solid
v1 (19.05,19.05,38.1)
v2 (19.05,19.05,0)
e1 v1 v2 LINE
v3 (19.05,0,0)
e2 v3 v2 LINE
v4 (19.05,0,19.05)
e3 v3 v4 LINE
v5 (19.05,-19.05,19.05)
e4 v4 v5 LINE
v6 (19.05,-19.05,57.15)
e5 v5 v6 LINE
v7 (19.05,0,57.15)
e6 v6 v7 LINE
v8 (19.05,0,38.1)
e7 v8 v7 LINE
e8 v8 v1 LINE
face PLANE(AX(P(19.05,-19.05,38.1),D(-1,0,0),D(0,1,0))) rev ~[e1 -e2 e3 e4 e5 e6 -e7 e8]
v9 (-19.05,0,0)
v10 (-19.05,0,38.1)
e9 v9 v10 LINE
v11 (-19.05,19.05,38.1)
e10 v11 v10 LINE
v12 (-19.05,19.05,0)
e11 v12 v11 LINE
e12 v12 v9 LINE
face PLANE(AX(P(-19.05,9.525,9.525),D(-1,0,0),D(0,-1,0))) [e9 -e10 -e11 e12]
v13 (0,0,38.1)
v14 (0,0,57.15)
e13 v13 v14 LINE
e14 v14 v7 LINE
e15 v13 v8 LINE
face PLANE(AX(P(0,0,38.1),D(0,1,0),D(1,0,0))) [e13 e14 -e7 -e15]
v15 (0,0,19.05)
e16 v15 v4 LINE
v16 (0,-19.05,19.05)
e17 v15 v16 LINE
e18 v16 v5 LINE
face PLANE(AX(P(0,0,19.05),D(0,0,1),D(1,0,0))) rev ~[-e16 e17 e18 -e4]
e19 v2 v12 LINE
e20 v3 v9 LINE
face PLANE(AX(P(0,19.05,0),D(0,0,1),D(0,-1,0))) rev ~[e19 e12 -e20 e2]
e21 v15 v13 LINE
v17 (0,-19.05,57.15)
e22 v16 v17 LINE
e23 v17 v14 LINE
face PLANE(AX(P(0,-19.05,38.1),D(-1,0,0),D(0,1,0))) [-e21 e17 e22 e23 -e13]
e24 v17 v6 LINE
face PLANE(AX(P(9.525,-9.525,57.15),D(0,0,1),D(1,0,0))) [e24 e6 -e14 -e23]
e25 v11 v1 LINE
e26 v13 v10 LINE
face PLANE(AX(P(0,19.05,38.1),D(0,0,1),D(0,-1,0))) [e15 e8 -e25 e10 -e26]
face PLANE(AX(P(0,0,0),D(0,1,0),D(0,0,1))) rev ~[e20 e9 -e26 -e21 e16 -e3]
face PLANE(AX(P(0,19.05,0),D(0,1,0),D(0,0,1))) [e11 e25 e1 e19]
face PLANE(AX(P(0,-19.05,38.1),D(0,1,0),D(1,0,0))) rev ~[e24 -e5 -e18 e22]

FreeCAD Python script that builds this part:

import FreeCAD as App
import Part
import Sketcher

V = App.Vector
Q = App.Units.Quantity


def add_polygon(sketch, points):
    """Adds a closed chain of lines whose ends are joined by coincident constraints."""
    first, n = sketch.GeometryCount, len(points)
    for a, b in zip(points, points[1:] + points[:1]):
        sketch.addGeometry(Part.LineSegment(App.Vector(*a, 0), App.Vector(*b, 0)), False)
    for i in range(n):
        sketch.addConstraint(Sketcher.Constraint("Coincident", first + i, 2, first + (i + 1) % n, 1))

doc = App.newDocument("Part")
body = doc.addObject("PartDesign::Body", "Body")

# Sketch on XY plane
sketch1 = body.newObject("Sketcher::SketchObject", "Sketch")
sketch1.AttachmentSupport = (doc.getObject("XY_Plane"), [""])
sketch1.MapMode = "FlatFace"
add_polygon(sketch1, [(0, 19.05), (0, 0), (19.05, 0), (19.05, 19.05)])  # lines 0-3
sketch1.addConstraint(Sketcher.Constraint("Vertical", 0))
sketch1.addConstraint(Sketcher.Constraint("Horizontal", 1))
sketch1.addConstraint(Sketcher.Constraint("Vertical", 2))
sketch1.addConstraint(Sketcher.Constraint("Horizontal", 3))
sketch1.addConstraint(Sketcher.Constraint("Coincident", 0, 2, -1, 1))
sketch1.addConstraint(Sketcher.Constraint("Equal", 3, 0))
sketch1.addConstraint(Sketcher.Constraint("DistanceX", 1, 1, 1, 2, Q("0.75 in")))
pad1 = body.newObject("PartDesign::Pad", "Pad")
pad1.Profile = sketch1
pad1.Length = Q("0.75 in")

# Sketch on XY plane
sketch2 = body.newObject("Sketcher::SketchObject", "Sketch001")
sketch2.AttachmentSupport = (doc.getObject("XY_Plane"), [""])
sketch2.MapMode = "FlatFace"
sketch2.AttachmentOffset = App.Placement(V(0, 0, 0.75 * 25.4), App.Rotation())
add_polygon(sketch2, [(0, 19.05), (0, 0), (19.05, 0), (19.05, 19.05)])  # lines 0-3
sketch2.addConstraint(Sketcher.Constraint("Vertical", 0))
sketch2.addConstraint(Sketcher.Constraint("Horizontal", 1))
sketch2.addConstraint(Sketcher.Constraint("Vertical", 2))
sketch2.addConstraint(Sketcher.Constraint("Horizontal", 3))
sketch2.addConstraint(Sketcher.Constraint("Coincident", 0, 2, -1, 1))
sketch2.addConstraint(Sketcher.Constraint("Equal", 3, 0))
sketch2.addConstraint(Sketcher.Constraint("DistanceX", 1, 1, 1, 2, Q("0.75 in")))
pad2 = body.newObject("PartDesign::Pad", "Pad001")
pad2.Profile = sketch2
pad2.Length = Q("0.75 in")

# Sketch on XZ plane
sketch3 = body.newObject("Sketcher::SketchObject", "Sketch002")
sketch3.AttachmentSupport = (doc.getObject("XZ_Plane"), [""])
sketch3.MapMode = "FlatFace"
add_polygon(sketch3, [(0, 38.1), (0, 19.05), (19.05, 19.05), (19.05, 38.1)])  # lines 0-3
sketch3.addConstraint(Sketcher.Constraint("Vertical", 0))
sketch3.addConstraint(Sketcher.Constraint("Horizontal", 1))
sketch3.addConstraint(Sketcher.Constraint("Vertical", 2))
sketch3.addConstraint(Sketcher.Constraint("Horizontal", 3))
sketch3.addConstraint(Sketcher.Constraint("PointOnObject", 0, 2, -2))
sketch3.addConstraint(Sketcher.Constraint("Equal", 3, 0))
sketch3.addConstraint(Sketcher.Constraint("DistanceX", 1, 1, 1, 2, Q("0.75 in")))
sketch3.addConstraint(Sketcher.Constraint("DistanceY", -1, 1, 2, 2, Q("1.5 in")))
pad3 = body.newObject("PartDesign::Pad", "Pad002")
pad3.Profile = sketch3
pad3.Length = Q("0.75 in")

# Sketch on YZ plane
sketch4 = body.newObject("Sketcher::SketchObject", "Sketch003")
sketch4.AttachmentSupport = (doc.getObject("YZ_Plane"), [""])
sketch4.MapMode = "FlatFace"
add_polygon(sketch4, [(19.05, 38.1), (19.05, 19.05), (0, 19.05), (0, 38.1)])  # lines 0-3
sketch4.addConstraint(Sketcher.Constraint("Vertical", 0))
sketch4.addConstraint(Sketcher.Constraint("Horizontal", 1))
sketch4.addConstraint(Sketcher.Constraint("Vertical", 2))
sketch4.addConstraint(Sketcher.Constraint("Horizontal", 3))
sketch4.addConstraint(Sketcher.Constraint("PointOnObject", 1, 2, -2))
sketch4.addConstraint(Sketcher.Constraint("Equal", 3, 0))
sketch4.addConstraint(Sketcher.Constraint("DistanceX", 1, 2, 1, 1, Q("0.75 in")))
sketch4.addConstraint(Sketcher.Constraint("DistanceY", -1, 1, 2, 2, Q("1.5 in")))
pad4 = body.newObject("PartDesign::Pad", "Pad003")
pad4.Profile = sketch4
pad4.Length = Q("0.75 in")
pad4.Reversed = True

# Sketch on YZ plane
sketch5 = body.newObject("Sketcher::SketchObject", "Sketch004")
sketch5.AttachmentSupport = (doc.getObject("YZ_Plane"), [""])
sketch5.MapMode = "FlatFace"
add_polygon(sketch5, [(19.05, 19.05), (19.05, 0), (0, 0), (0, 19.05)])  # lines 0-3
sketch5.addConstraint(Sketcher.Constraint("Vertical", 0))
sketch5.addConstraint(Sketcher.Constraint("Horizontal", 1))
sketch5.addConstraint(Sketcher.Constraint("Vertical", 2))
sketch5.addConstraint(Sketcher.Constraint("Horizontal", 3))
sketch5.addConstraint(Sketcher.Constraint("Coincident", 1, 2, -1, 1))
sketch5.addConstraint(Sketcher.Constraint("Equal", 3, 0))
sketch5.addConstraint(Sketcher.Constraint("DistanceX", 1, 2, 1, 1, Q("0.75 in")))
pad5 = body.newObject("PartDesign::Pad", "Pad004")
pad5.Profile = sketch5
pad5.Length = Q("0.75 in")
pad5.Reversed = True

# Sketch on XY plane
sketch6 = body.newObject("Sketcher::SketchObject", "Sketch005")
sketch6.AttachmentSupport = (doc.getObject("XY_Plane"), [""])
sketch6.MapMode = "FlatFace"
sketch6.AttachmentOffset = App.Placement(V(0, 0, 1.5 * 25.4), App.Rotation())
add_polygon(sketch6, [(0, 0), (0, -19.05), (19.05, -19.05), (19.05, 0)])  # lines 0-3
sketch6.addConstraint(Sketcher.Constraint("Vertical", 0))
sketch6.addConstraint(Sketcher.Constraint("Horizontal", 1))
sketch6.addConstraint(Sketcher.Constraint("Vertical", 2))
sketch6.addConstraint(Sketcher.Constraint("Horizontal", 3))
sketch6.addConstraint(Sketcher.Constraint("Coincident", 3, 2, -1, 1))
sketch6.addConstraint(Sketcher.Constraint("Equal", 3, 0))
sketch6.addConstraint(Sketcher.Constraint("DistanceX", 1, 1, 1, 2, Q("0.75 in")))
pad6 = body.newObject("PartDesign::Pad", "Pad005")
pad6.Profile = sketch6
pad6.Length = Q("0.75 in")

doc.recompute()
